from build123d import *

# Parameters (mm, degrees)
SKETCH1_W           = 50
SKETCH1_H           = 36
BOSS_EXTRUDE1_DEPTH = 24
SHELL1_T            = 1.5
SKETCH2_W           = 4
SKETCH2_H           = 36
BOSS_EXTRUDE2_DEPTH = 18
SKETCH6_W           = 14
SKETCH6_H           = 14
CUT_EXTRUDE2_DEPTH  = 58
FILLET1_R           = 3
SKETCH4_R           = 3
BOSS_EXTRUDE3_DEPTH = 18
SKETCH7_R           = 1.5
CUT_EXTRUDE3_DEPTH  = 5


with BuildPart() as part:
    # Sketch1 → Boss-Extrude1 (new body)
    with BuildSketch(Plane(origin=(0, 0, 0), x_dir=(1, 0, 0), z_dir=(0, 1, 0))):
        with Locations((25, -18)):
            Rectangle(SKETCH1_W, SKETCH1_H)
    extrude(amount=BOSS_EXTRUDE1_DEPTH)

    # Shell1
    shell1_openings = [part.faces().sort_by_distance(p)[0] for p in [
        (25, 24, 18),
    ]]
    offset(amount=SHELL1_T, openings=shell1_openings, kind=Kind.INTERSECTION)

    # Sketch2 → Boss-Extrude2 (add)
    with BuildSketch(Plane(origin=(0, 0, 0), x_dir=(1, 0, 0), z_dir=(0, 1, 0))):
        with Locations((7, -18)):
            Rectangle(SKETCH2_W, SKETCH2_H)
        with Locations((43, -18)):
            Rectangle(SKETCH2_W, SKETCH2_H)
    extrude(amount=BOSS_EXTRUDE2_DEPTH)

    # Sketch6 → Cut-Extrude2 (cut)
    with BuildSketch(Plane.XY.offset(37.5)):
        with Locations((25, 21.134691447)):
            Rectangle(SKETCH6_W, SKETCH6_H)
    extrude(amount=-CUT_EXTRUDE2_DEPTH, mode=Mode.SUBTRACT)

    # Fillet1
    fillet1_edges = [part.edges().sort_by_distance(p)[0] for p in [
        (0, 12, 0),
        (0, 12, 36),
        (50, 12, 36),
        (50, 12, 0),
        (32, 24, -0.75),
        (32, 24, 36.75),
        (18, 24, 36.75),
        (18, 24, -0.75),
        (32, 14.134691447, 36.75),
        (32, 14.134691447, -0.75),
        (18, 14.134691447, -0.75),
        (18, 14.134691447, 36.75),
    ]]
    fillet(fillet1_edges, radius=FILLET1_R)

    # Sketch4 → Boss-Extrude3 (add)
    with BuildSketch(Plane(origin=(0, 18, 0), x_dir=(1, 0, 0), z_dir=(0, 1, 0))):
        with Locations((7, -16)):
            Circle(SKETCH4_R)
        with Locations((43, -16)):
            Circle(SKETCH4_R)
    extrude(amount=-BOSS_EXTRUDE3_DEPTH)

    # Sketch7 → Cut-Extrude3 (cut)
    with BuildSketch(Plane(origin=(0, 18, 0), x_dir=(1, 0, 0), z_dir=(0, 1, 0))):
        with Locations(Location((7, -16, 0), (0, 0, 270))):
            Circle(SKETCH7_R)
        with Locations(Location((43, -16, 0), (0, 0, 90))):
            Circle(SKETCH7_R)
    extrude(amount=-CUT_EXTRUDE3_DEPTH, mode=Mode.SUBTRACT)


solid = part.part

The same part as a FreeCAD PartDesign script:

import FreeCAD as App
import Part
import Sketcher

V = App.Vector


def edges_at(feature, points):
    """Names of the edges that pass closest to the given points."""
    edges = feature.Shape.Edges
    near = lambda p: min(range(len(edges)), key=lambda i: edges[i].distToShape(Part.Vertex(*p))[0])
    return sorted({f"Edge{near(p) + 1}" for p in points})


def faces_at(feature, points):
    """Names of the faces that lie closest to the given points."""
    faces = feature.Shape.Faces
    near = lambda p: min(range(len(faces)), key=lambda i: faces[i].distToShape(Part.Vertex(*p))[0])
    return sorted({f"Face{near(p) + 1}" for p in points})

doc = App.newDocument("Part")
body = doc.addObject("PartDesign::Body", "Body")

# Sketch on XZ plane
sketch1 = body.newObject("Sketcher::SketchObject", "Sketch")
sketch1.AttachmentSupport = (doc.getObject("XZ_Plane"), [""])
sketch1.MapMode = "FlatFace"
sketch1.addGeometry(Part.LineSegment(V(0, 0, 0), V(0, 36, 0)), False)
sketch1.addGeometry(Part.LineSegment(V(0, 36, 0), V(50, 36, 0)), False)
sketch1.addGeometry(Part.LineSegment(V(50, 36, 0), V(50, 0, 0)), False)
sketch1.addGeometry(Part.LineSegment(V(50, 0, 0), V(0, 0, 0)), False)
sketch1.addConstraint(Sketcher.Constraint("Coincident", 0, 2, 1, 1))
sketch1.addConstraint(Sketcher.Constraint("Coincident", 1, 2, 2, 1))
sketch1.addConstraint(Sketcher.Constraint("Coincident", 2, 2, 3, 1))
sketch1.addConstraint(Sketcher.Constraint("Coincident", 3, 2, 0, 1))
sketch1.addConstraint(Sketcher.Constraint("Vertical", 0))
sketch1.addConstraint(Sketcher.Constraint("Horizontal", 1))
sketch1.addConstraint(Sketcher.Constraint("Vertical", 2))
sketch1.addConstraint(Sketcher.Constraint("Horizontal", 3))
sketch1.addConstraint(Sketcher.Constraint("Coincident", 3, 2, -1, 1))
sketch1.addConstraint(Sketcher.Constraint("DistanceX", 1, 1, 1, 2, 50.0))
sketch1.addConstraint(Sketcher.Constraint("DistanceY", 0, 1, 0, 2, 36.0))
pad1 = body.newObject("PartDesign::Pad", "Pad")
pad1.Profile = sketch1
pad1.Length = 24
pad1.Reversed = True
doc.recompute()

thickness = body.newObject("PartDesign::Thickness", "Thickness")
thickness.Base = (pad1, faces_at(pad1, [(25, 24, 18)]))
thickness.Value = 1.5
thickness.Reversed = False
thickness.Join = "Intersection"

# Sketch on XZ plane
sketch2 = body.newObject("Sketcher::SketchObject", "Sketch001")
sketch2.AttachmentSupport = (doc.getObject("XZ_Plane"), [""])
sketch2.MapMode = "FlatFace"
sketch2.addGeometry(Part.LineSegment(V(5, 0, 0), V(5, 36, 0)), False)
sketch2.addGeometry(Part.LineSegment(V(5, 36, 0), V(9, 36, 0)), False)
sketch2.addGeometry(Part.LineSegment(V(9, 36, 0), V(9, 0, 0)), False)
sketch2.addGeometry(Part.LineSegment(V(9, 0, 0), V(5, 0, 0)), False)
sketch2.addGeometry(Part.LineSegment(V(41, 0, 0), V(41, 36, 0)), False)
sketch2.addGeometry(Part.LineSegment(V(41, 36, 0), V(45, 36, 0)), False)
sketch2.addGeometry(Part.LineSegment(V(45, 36, 0), V(45, 0, 0)), False)
sketch2.addGeometry(Part.LineSegment(V(45, 0, 0), V(41, 0, 0)), False)
sketch2.addConstraint(Sketcher.Constraint("Coincident", 0, 2, 1, 1))
sketch2.addConstraint(Sketcher.Constraint("Coincident", 1, 2, 2, 1))
sketch2.addConstraint(Sketcher.Constraint("Coincident", 2, 2, 3, 1))
sketch2.addConstraint(Sketcher.Constraint("Coincident", 3, 2, 0, 1))
sketch2.addConstraint(Sketcher.Constraint("Coincident", 4, 2, 5, 1))
sketch2.addConstraint(Sketcher.Constraint("Coincident", 5, 2, 6, 1))
sketch2.addConstraint(Sketcher.Constraint("Coincident", 6, 2, 7, 1))
sketch2.addConstraint(Sketcher.Constraint("Coincident", 7, 2, 4, 1))
sketch2.addConstraint(Sketcher.Constraint("Vertical", 0))
sketch2.addConstraint(Sketcher.Constraint("Horizontal", 1))
sketch2.addConstraint(Sketcher.Constraint("Vertical", 2))
sketch2.addConstraint(Sketcher.Constraint("Horizontal", 3))
sketch2.addConstraint(Sketcher.Constraint("Vertical", 4))
sketch2.addConstraint(Sketcher.Constraint("Horizontal", 5))
sketch2.addConstraint(Sketcher.Constraint("Vertical", 6))
sketch2.addConstraint(Sketcher.Constraint("Horizontal", 7))
sketch2.addConstraint(Sketcher.Constraint("PointOnObject", 2, 2, -1))
sketch2.addConstraint(Sketcher.Constraint("PointOnObject", 6, 2, -1))
sketch2.addConstraint(Sketcher.Constraint("Horizontal", 1, 2, 4, 2))
sketch2.addConstraint(Sketcher.Constraint("Equal", 3, 5))
sketch2.addConstraint(Sketcher.Constraint("DistanceX", 1, 1, 1, 2, 4.0))
sketch2.addConstraint(Sketcher.Constraint("DistanceY", 0, 1, 0, 2, 36.0))
sketch2.addConstraint(Sketcher.Constraint("DistanceX", -1, 1, 0, 2, 5.0))
sketch2.addConstraint(Sketcher.Constraint("DistanceX", -1, 1, 4, 2, 41.0))
pad2 = body.newObject("PartDesign::Pad", "Pad001")
pad2.Profile = sketch2
pad2.Length = 18
pad2.Reversed = True

# Sketch on XY plane
sketch3 = body.newObject("Sketcher::SketchObject", "Sketch002")
sketch3.AttachmentSupport = (doc.getObject("XY_Plane"), [""])
sketch3.MapMode = "FlatFace"
sketch3.AttachmentOffset = App.Placement(V(0, 0, 37.5), App.Rotation())
sketch3.addGeometry(Part.LineSegment(V(18, 28, 0), V(18, 14, 0)), False)
sketch3.addGeometry(Part.LineSegment(V(18, 14, 0), V(32, 14, 0)), False)
sketch3.addGeometry(Part.LineSegment(V(32, 14, 0), V(32, 28, 0)), False)
sketch3.addGeometry(Part.LineSegment(V(32, 28, 0), V(18, 28, 0)), False)
sketch3.addConstraint(Sketcher.Constraint("Coincident", 0, 2, 1, 1))
sketch3.addConstraint(Sketcher.Constraint("Coincident", 1, 2, 2, 1))
sketch3.addConstraint(Sketcher.Constraint("Coincident", 2, 2, 3, 1))
sketch3.addConstraint(Sketcher.Constraint("Coincident", 3, 2, 0, 1))
sketch3.addConstraint(Sketcher.Constraint("Vertical", 0))
sketch3.addConstraint(Sketcher.Constraint("Horizontal", 1))
sketch3.addConstraint(Sketcher.Constraint("Vertical", 2))
sketch3.addConstraint(Sketcher.Constraint("Horizontal", 3))
sketch3.addConstraint(Sketcher.Constraint("Equal", 3, 0))
sketch3.addConstraint(Sketcher.Constraint("DistanceX", 1, 1, 1, 2, 14.0))
sketch3.addConstraint(Sketcher.Constraint("DistanceX", -1, 1, 0, 2, 18.0))
sketch3.addConstraint(Sketcher.Constraint("DistanceY", -1, 1, 0, 2, 14.134691))
pocket1 = body.newObject("PartDesign::Pocket", "Pocket")
pocket1.Profile = sketch3
pocket1.Length = 58
doc.recompute()

fillet = body.newObject("PartDesign::Fillet", "Fillet")
fillet.Base = (pocket1, edges_at(pocket1, [
    (0, 12, 0),
    (0, 12, 36),
    (50, 12, 36),
    (50, 12, 0),
    (32, 24, -0.75),
    (32, 24, 36.75),
    (18, 24, 36.75),
    (18, 24, -0.75),
    (32, 14.135, 36.75),
    (32, 14.135, -0.75),
    (18, 14.135, -0.75),
    (18, 14.135, 36.75),
]))
fillet.Radius = 3

# Sketch on XZ plane
sketch4 = body.newObject("Sketcher::SketchObject", "Sketch003")
sketch4.AttachmentSupport = (doc.getObject("XZ_Plane"), [""])
sketch4.MapMode = "FlatFace"
sketch4.AttachmentOffset = App.Placement(V(0, 0, -18), App.Rotation())
sketch4.addGeometry(Part.Circle(V(7, 16, 0), V(0, 0, 1), 3), False)
sketch4.addGeometry(Part.Circle(V(43, 16, 0), V(0, 0, 1), 3), False)
sketch4.addConstraint(Sketcher.Constraint("Equal", 0, 1))
sketch4.addConstraint(Sketcher.Constraint("Horizontal", 0, 3, 1, 3))
sketch4.addConstraint(Sketcher.Constraint("Diameter", 0, 6.0))
sketch4.addConstraint(Sketcher.Constraint("DistanceX", -1, 1, 0, 3, 7.0))
sketch4.addConstraint(Sketcher.Constraint("DistanceY", -1, 1, 0, 3, 16.0))
sketch4.addConstraint(Sketcher.Constraint("DistanceX", -1, 1, 1, 3, 43.0))
pad3 = body.newObject("PartDesign::Pad", "Pad002")
pad3.Profile = sketch4
pad3.Length = 18

# Sketch on XZ plane
sketch5 = body.newObject("Sketcher::SketchObject", "Sketch004")
sketch5.AttachmentSupport = (doc.getObject("XZ_Plane"), [""])
sketch5.MapMode = "FlatFace"
sketch5.AttachmentOffset = App.Placement(V(0, 0, -18), App.Rotation())
sketch5.addGeometry(Part.Circle(V(7, 16, 0), V(0, 0, 1), 1.5), False)
sketch5.addGeometry(Part.Circle(V(43, 16, 0), V(0, 0, 1), 1.5), False)
sketch5.addConstraint(Sketcher.Constraint("Equal", 0, 1))
sketch5.addConstraint(Sketcher.Constraint("Horizontal", 0, 3, 1, 3))
sketch5.addConstraint(Sketcher.Constraint("Diameter", 0, 3.0))
sketch5.addConstraint(Sketcher.Constraint("DistanceX", -1, 1, 0, 3, 7.0))
sketch5.addConstraint(Sketcher.Constraint("DistanceY", -1, 1, 0, 3, 16.0))
sketch5.addConstraint(Sketcher.Constraint("DistanceX", -1, 1, 1, 3, 43.0))
pocket2 = body.newObject("PartDesign::Pocket", "Pocket001")
pocket2.Profile = sketch5
pocket2.Length = 5
pocket2.Reversed = True

doc.recompute()
